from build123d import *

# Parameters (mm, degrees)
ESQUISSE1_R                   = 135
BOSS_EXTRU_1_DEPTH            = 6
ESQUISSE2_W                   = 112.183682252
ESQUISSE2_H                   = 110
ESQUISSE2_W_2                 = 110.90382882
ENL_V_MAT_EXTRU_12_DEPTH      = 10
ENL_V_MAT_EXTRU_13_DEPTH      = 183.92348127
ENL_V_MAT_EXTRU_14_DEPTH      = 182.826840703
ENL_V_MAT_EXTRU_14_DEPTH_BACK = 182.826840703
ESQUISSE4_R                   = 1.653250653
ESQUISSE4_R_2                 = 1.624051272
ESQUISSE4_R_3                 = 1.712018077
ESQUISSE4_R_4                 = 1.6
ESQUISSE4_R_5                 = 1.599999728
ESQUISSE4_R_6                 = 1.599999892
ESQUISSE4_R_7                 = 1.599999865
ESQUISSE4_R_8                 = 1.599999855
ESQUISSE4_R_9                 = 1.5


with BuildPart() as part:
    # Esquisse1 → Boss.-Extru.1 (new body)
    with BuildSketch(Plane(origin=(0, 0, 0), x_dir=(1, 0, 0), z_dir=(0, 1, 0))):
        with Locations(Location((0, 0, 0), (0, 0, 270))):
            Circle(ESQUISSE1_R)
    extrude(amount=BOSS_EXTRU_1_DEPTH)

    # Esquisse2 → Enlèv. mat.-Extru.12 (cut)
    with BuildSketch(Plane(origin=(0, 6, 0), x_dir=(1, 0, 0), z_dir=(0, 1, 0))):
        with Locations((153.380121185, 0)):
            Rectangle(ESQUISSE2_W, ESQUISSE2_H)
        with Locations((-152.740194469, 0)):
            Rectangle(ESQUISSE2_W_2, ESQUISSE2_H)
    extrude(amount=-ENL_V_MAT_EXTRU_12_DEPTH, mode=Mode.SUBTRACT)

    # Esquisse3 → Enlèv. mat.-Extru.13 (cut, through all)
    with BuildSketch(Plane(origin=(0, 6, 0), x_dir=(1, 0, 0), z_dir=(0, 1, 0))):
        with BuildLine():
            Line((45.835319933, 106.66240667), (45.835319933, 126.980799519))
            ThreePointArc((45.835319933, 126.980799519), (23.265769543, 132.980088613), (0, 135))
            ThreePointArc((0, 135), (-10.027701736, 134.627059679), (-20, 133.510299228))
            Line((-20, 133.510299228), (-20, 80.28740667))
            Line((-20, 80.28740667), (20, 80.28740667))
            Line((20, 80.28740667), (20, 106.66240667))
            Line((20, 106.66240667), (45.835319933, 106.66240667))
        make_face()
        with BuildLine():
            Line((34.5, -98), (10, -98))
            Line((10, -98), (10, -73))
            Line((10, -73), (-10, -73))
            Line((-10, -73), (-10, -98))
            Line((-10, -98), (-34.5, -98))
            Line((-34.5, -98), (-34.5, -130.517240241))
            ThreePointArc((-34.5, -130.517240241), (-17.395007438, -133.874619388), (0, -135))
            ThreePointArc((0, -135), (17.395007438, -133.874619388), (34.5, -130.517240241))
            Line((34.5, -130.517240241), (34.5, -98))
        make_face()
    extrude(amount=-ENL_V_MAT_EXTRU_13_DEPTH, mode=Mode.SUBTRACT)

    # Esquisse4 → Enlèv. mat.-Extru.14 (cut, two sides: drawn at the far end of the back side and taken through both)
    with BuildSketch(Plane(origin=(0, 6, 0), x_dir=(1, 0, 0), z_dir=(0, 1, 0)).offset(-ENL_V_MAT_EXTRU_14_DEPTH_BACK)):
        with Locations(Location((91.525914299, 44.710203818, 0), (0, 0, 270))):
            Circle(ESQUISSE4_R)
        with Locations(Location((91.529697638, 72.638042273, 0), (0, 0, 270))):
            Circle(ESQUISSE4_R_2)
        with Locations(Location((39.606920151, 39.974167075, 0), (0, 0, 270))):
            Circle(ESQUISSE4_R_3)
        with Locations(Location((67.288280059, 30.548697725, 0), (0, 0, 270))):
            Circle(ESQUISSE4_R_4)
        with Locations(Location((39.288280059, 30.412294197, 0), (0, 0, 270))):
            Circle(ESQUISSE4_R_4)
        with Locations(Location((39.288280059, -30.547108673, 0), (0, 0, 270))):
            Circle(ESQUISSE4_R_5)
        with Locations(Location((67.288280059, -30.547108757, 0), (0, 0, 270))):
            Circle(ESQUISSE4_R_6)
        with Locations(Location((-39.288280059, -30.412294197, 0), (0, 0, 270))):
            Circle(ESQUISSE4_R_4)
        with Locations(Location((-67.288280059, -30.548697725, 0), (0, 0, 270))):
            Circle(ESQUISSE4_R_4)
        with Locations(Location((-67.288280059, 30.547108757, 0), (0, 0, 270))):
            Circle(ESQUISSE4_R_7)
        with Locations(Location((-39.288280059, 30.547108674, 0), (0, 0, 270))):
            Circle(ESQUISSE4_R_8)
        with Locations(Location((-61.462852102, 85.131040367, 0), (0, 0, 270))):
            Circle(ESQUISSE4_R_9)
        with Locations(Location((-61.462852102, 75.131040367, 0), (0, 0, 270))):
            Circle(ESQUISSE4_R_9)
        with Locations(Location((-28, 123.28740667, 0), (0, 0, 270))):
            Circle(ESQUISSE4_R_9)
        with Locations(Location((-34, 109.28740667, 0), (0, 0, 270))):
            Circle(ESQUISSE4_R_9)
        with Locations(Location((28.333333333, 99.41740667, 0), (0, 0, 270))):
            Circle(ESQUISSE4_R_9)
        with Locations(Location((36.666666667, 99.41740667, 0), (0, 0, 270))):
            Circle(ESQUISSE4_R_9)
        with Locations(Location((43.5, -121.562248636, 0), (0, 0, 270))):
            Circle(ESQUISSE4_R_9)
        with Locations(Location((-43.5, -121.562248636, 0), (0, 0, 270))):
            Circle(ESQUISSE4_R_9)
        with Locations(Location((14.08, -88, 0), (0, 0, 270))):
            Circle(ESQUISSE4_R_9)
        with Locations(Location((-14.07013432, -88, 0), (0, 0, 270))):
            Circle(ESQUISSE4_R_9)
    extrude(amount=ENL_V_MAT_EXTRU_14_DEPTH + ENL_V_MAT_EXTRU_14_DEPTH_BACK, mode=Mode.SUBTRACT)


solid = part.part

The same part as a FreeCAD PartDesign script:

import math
import FreeCAD as App
import Part
import Sketcher

V = App.Vector
Q = App.Units.Quantity

doc = App.newDocument("Part")
body = doc.addObject("PartDesign::Body", "Body")

# Sketch on XZ plane
sketch1 = doc.addObject("Sketcher::SketchObject", "Sketch")
body.addObject(sketch1)
sketch1.AttachmentSupport = (doc.XZ_Plane, [""])
sketch1.MapMode = "FlatFace"
sketch1.addGeometry(Part.Circle(V(0, 0, 0), V(0, 0, 1), 135), False)
sketch1.addConstraint([
    Sketcher.Constraint("Coincident", 0, 3, -1, 1),
    Sketcher.Constraint("Diameter", 0, Q("270 mm")),
])
pad1 = doc.addObject("PartDesign::Pad", "Pad")
body.addObject(pad1)
pad1.Profile = sketch1
pad1.Length = 6
pad1.Reversed = True

# Sketch on XZ plane
sketch2 = doc.addObject("Sketcher::SketchObject", "Sketch001")
body.addObject(sketch2)
sketch2.AttachmentSupport = (doc.XZ_Plane, [""])
sketch2.MapMode = "FlatFace"
sketch2.AttachmentOffset = App.Placement(V(0, 0, -6), App.Rotation())
sketch2.addGeometry([
    Part.LineSegment(V(97, -55, 0), V(97, 55, 0)),  # 0
    Part.LineSegment(V(97, 55, 0), V(209, 55, 0)),  # 1
    Part.LineSegment(V(209, 55, 0), V(209, -55, 0)),  # 2
    Part.LineSegment(V(209, -55, 0), V(97, -55, 0)),  # 3
    Part.LineSegment(V(-208, -55, 0), V(-208, 55, 0)),  # 4
    Part.LineSegment(V(-208, 55, 0), V(-97, 55, 0)),  # 5
    Part.LineSegment(V(-97, 55, 0), V(-97, -55, 0)),  # 6
    Part.LineSegment(V(-97, -55, 0), V(-208, -55, 0)),  # 7
], False)
sketch2.addConstraint([
    Sketcher.Constraint("Coincident", 0, 2, 1, 1),
    Sketcher.Constraint("Coincident", 1, 2, 2, 1),
    Sketcher.Constraint("Coincident", 2, 2, 3, 1),
    Sketcher.Constraint("Coincident", 3, 2, 0, 1),
    Sketcher.Constraint("Coincident", 4, 2, 5, 1),
    Sketcher.Constraint("Coincident", 5, 2, 6, 1),
    Sketcher.Constraint("Coincident", 6, 2, 7, 1),
    Sketcher.Constraint("Coincident", 7, 2, 4, 1),
    Sketcher.Constraint("Vertical", 0),
    Sketcher.Constraint("Horizontal", 1),
    Sketcher.Constraint("Vertical", 2),
    Sketcher.Constraint("Horizontal", 3),
    Sketcher.Constraint("Vertical", 4),
    Sketcher.Constraint("Horizontal", 5),
    Sketcher.Constraint("Vertical", 6),
    Sketcher.Constraint("Horizontal", 7),
    Sketcher.Constraint("Symmetric", 3, 2, 5, 2, -1, 1),
    Sketcher.Constraint("Horizontal", 1, 2, 4, 2),
    Sketcher.Constraint("Horizontal", 3, 2, 6, 2),
    Sketcher.Constraint("DistanceY", 0, 1, 0, 2, Q("110 mm")),
    Sketcher.Constraint("DistanceX", 5, 1, 5, 2, Q("110.903829 mm")),
    Sketcher.Constraint("DistanceX", 1, 1, 1, 2, Q("112.183682 mm")),
    Sketcher.Constraint("DistanceX", -1, 1, 0, 2, Q("97.28828 mm")),
])
pocket1 = doc.addObject("PartDesign::Pocket", "Pocket")
body.addObject(pocket1)
pocket1.Profile = sketch2
pocket1.Length = 10
pocket1.Reversed = True

# Sketch on XZ plane
sketch3 = doc.addObject("Sketcher::SketchObject", "Sketch002")
body.addObject(sketch3)
sketch3.AttachmentSupport = (doc.XZ_Plane, [""])
sketch3.MapMode = "FlatFace"
sketch3.AttachmentOffset = App.Placement(V(0, 0, -6), App.Rotation())
sketch3.addGeometry([
    Part.LineSegment(V(46, -107, 0), V(46, -127, 0)),  # 0
    Part.ArcOfCircle(Part.Circle(V(0, 0, 0), V(0, 0, 1), 135), math.radians(-90), math.radians(-70.15)),  # 1
    Part.ArcOfCircle(Part.Circle(V(0, 0, 0), V(0, 0, 1), 135), math.radians(-98.52), math.radians(-90)),  # 2
    Part.LineSegment(V(-20, -134, 0), V(-20, -80, 0)),  # 3
    Part.LineSegment(V(-20, -80, 0), V(20, -80, 0)),  # 4
    Part.LineSegment(V(20, -80, 0), V(20, -107, 0)),  # 5
    Part.LineSegment(V(20, -107, 0), V(46, -107, 0)),  # 6
    Part.LineSegment(V(34, 98, 0), V(10, 98, 0)),  # 7
    Part.LineSegment(V(10, 98, 0), V(10, 73, 0)),  # 8
    Part.LineSegment(V(10, 73, 0), V(-10, 73, 0)),  # 9
    Part.LineSegment(V(-10, 73, 0), V(-10, 98, 0)),  # 10
    Part.LineSegment(V(-10, 98, 0), V(-34, 98, 0)),  # 11
    Part.LineSegment(V(-34, 98, 0), V(-34, 131, 0)),  # 12
    Part.ArcOfCircle(Part.Circle(V(0, 0, 0), V(0, 0, 1), 135), math.radians(90), math.radians(104.81)),  # 13
    Part.ArcOfCircle(Part.Circle(V(0, 0, 0), V(0, 0, 1), 135), math.radians(75.19), math.radians(90)),  # 14
    Part.LineSegment(V(34, 131, 0), V(34, 98, 0)),  # 15
], False)
sketch3.addConstraint([
    Sketcher.Constraint("Coincident", 0, 2, 1, 2),
    Sketcher.Constraint("Tangent", 1, 1, 2, 2),
    Sketcher.Constraint("Coincident", 2, 1, 3, 1),
    Sketcher.Constraint("Coincident", 3, 2, 4, 1),
    Sketcher.Constraint("Coincident", 4, 2, 5, 1),
    Sketcher.Constraint("Coincident", 5, 2, 6, 1),
    Sketcher.Constraint("Coincident", 6, 2, 0, 1),
    Sketcher.Constraint("Coincident", 7, 2, 8, 1),
    Sketcher.Constraint("Coincident", 8, 2, 9, 1),
    Sketcher.Constraint("Coincident", 9, 2, 10, 1),
    Sketcher.Constraint("Coincident", 10, 2, 11, 1),
    Sketcher.Constraint("Coincident", 11, 2, 12, 1),
    Sketcher.Constraint("Coincident", 12, 2, 13, 2),
    Sketcher.Constraint("Tangent", 13, 1, 14, 2),
    Sketcher.Constraint("Coincident", 14, 1, 15, 1),
    Sketcher.Constraint("Coincident", 15, 2, 7, 1),
    Sketcher.Constraint("Vertical", 0),
    Sketcher.Constraint("Vertical", 3),
    Sketcher.Constraint("Horizontal", 4),
    Sketcher.Constraint("Vertical", 5),
    Sketcher.Constraint("Horizontal", 6),
    Sketcher.Constraint("Horizontal", 7),
    Sketcher.Constraint("Vertical", 8),
    Sketcher.Constraint("Horizontal", 9),
    Sketcher.Constraint("Vertical", 10),
    Sketcher.Constraint("Horizontal", 11),
    Sketcher.Constraint("Vertical", 12),
    Sketcher.Constraint("Vertical", 15),
    Sketcher.Constraint("Coincident", 1, 3, -1, 1),
    Sketcher.Constraint("Coincident", 13, 3, -1, 1),
    Sketcher.Constraint("Equal", 1, 2),
    Sketcher.Constraint("Equal", 2, 13),
    Sketcher.Constraint("Equal", 13, 14),
    Sketcher.Constraint("Symmetric", 7, 2, 10, 2, -2),
    Sketcher.Constraint("PointOnObject", 1, 1, -2),
    Sketcher.Constraint("PointOnObject", 13, 1, -2),
    Sketcher.Constraint("Horizontal", 12, 2, 14, 1),
    Sketcher.Constraint("Radius", 1, Q("135 mm")),
    Sketcher.Constraint("DistanceX", 4, 1, 4, 2, Q("40 mm")),
    Sketcher.Constraint("DistanceX", 9, 2, 9, 1, Q("20 mm")),
    Sketcher.Constraint("DistanceY", 8, 2, 8, 1, Q("25 mm")),
    Sketcher.Constraint("DistanceX", 7, 2, 7, 1, Q("24.5 mm")),
    Sketcher.Constraint("DistanceX", 2, 1, -1, 1, Q("20 mm")),
    Sketcher.Constraint("DistanceY", -1, 1, 7, 2, Q("98 mm")),
    Sketcher.Constraint("DistanceY", 5, 2, 5, 1, Q("26.375 mm")),
    Sketcher.Constraint("DistanceX", 6, 1, 6, 2, Q("25.83532 mm")),
    Sketcher.Constraint("DistanceY", 0, 2, 0, 1, Q("20.318393 mm")),
])
pocket2 = doc.addObject("PartDesign::Pocket", "Pocket001")
body.addObject(pocket2)
pocket2.Profile = sketch3
pocket2.Type = "ThroughAll"
pocket2.Reversed = True

# Sketch on XZ plane
sketch4 = doc.addObject("Sketcher::SketchObject", "Sketch003")
body.addObject(sketch4)
sketch4.AttachmentSupport = (doc.XZ_Plane, [""])
sketch4.MapMode = "FlatFace"
sketch4.AttachmentOffset = App.Placement(V(0, 0, -6), App.Rotation())
sketch4.addGeometry([
    Part.Circle(V(91.5, -44.7, 0), V(0, 0, 1), 1.7),  # 0
    Part.Circle(V(91.5, -72.6, 0), V(0, 0, 1), 1.6),  # 1
    Part.Circle(V(39.6, -40, 0), V(0, 0, 1), 1.7),  # 2
    Part.Circle(V(67.3, -30.5, 0), V(0, 0, 1), 1.6),  # 3
    Part.Circle(V(39.3, -30.4, 0), V(0, 0, 1), 1.6),  # 4
    Part.Circle(V(39.3, 30.5, 0), V(0, 0, 1), 1.6),  # 5
    Part.Circle(V(67.3, 30.5, 0), V(0, 0, 1), 1.6),  # 6
    Part.Circle(V(-39.3, 30.4, 0), V(0, 0, 1), 1.6),  # 7
    Part.Circle(V(-67.3, 30.5, 0), V(0, 0, 1), 1.6),  # 8
    Part.Circle(V(-67.3, -30.5, 0), V(0, 0, 1), 1.6),  # 9
    Part.Circle(V(-39.3, -30.5, 0), V(0, 0, 1), 1.6),  # 10
    Part.Circle(V(-61.5, -85.1, 0), V(0, 0, 1), 1.5),  # 11
    Part.Circle(V(-61.5, -75.1, 0), V(0, 0, 1), 1.5),  # 12
    Part.Circle(V(-28, -123.3, 0), V(0, 0, 1), 1.5),  # 13
    Part.Circle(V(-34, -109.3, 0), V(0, 0, 1), 1.5),  # 14
    Part.Circle(V(28.3, -99.4, 0), V(0, 0, 1), 1.5),  # 15
    Part.Circle(V(36.7, -99.4, 0), V(0, 0, 1), 1.5),  # 16
    Part.Circle(V(43.5, 121.6, 0), V(0, 0, 1), 1.5),  # 17
    Part.Circle(V(-43.5, 121.6, 0), V(0, 0, 1), 1.5),  # 18
    Part.Circle(V(14.1, 88, 0), V(0, 0, 1), 1.5),  # 19
    Part.Circle(V(-14.1, 88, 0), V(0, 0, 1), 1.5),  # 20
], False)
sketch4.addConstraint([
    Sketcher.Constraint("Equal", 3, 4),
    Sketcher.Constraint("Equal", 4, 5),
    Sketcher.Constraint("Equal", 5, 6),
    Sketcher.Constraint("Equal", 6, 7),
    Sketcher.Constraint("Equal", 7, 8),
    Sketcher.Constraint("Equal", 8, 9),
    Sketcher.Constraint("Equal", 9, 10),
    Sketcher.Constraint("Equal", 11, 12),
    Sketcher.Constraint("Equal", 12, 13),
    Sketcher.Constraint("Equal", 13, 14),
    Sketcher.Constraint("Equal", 14, 15),
    Sketcher.Constraint("Equal", 15, 16),
    Sketcher.Constraint("Equal", 16, 17),
    Sketcher.Constraint("Equal", 17, 18),
    Sketcher.Constraint("Equal", 18, 19),
    Sketcher.Constraint("Equal", 19, 20),
    Sketcher.Constraint("Symmetric", 4, 3, 7, 3, -1, 1),
    Sketcher.Constraint("Symmetric", 3, 3, 8, 3, -1, 1),
    Sketcher.Constraint("Symmetric", 6, 3, 9, 3, -1, 1),
    Sketcher.Constraint("Symmetric", 5, 3, 10, 3, -1, 1),
    Sketcher.Constraint("Symmetric", 17, 3, 18, 3, -2),
    Sketcher.Constraint("Horizontal", 5, 3, 6, 3),
    Sketcher.Constraint("Horizontal", 15, 3, 16, 3),
    Sketcher.Constraint("Horizontal", 19, 3, 20, 3),
    Sketcher.Constraint("Vertical", 4, 3, 5, 3),
    Sketcher.Constraint("Vertical", 3, 3, 6, 3),
    Sketcher.Constraint("Vertical", 11, 3, 12, 3),
    Sketcher.Constraint("Diameter", 11, Q("3 mm")),
    Sketcher.Constraint("Diameter", 3, Q("3.2 mm")),
    Sketcher.Constraint("DistanceX", 13, 3, -1, 1, Q("28 mm")),
    Sketcher.Constraint("DistanceX", 14, 3, -1, 1, Q("34 mm")),
    Sketcher.Constraint("DistanceY", -1, 1, 19, 3, Q("88 mm")),
    Sketcher.Constraint("DistanceX", 4, 3, 3, 3, Q("28 mm")),
    Sketcher.Constraint("DistanceY", 11, 3, 12, 3, Q("10 mm")),
    Sketcher.Constraint("DistanceY", 13, 3, 14, 3, Q("14 mm")),
    Sketcher.Constraint("DistanceX", 18, 3, 17, 3, Q("87 mm")),
    Sketcher.Constraint("Diameter", 0, Q("3.306501 mm")),
    Sketcher.Constraint("DistanceX", -1, 1, 19, 3, Q("14.08 mm")),
    Sketcher.Constraint("DistanceY", 13, 3, 15, 3, Q("23.87 mm")),
    Sketcher.Constraint("Diameter", 1, Q("3.248103 mm")),
    Sketcher.Constraint("Diameter", 2, Q("3.424036 mm")),
    Sketcher.Constraint("DistanceX", 7, 3, 2, 3, Q("78.8952 mm")),
    Sketcher.Constraint("DistanceX", -1, 1, 2, 3, Q("39.60692 mm")),
    Sketcher.Constraint("DistanceY", -1, 1, 5, 3, Q("30.547109 mm")),
    Sketcher.Constraint("DistanceY", 11, 3, -1, 1, Q("85.13104 mm")),
    Sketcher.Constraint("DistanceY", -1, 1, 17, 3, Q("121.562249 mm")),
    Sketcher.Constraint("DistanceY", 1, 3, 0, 3, Q("27.927838 mm")),
    Sketcher.Constraint("DistanceY", 2, 3, 3, 3, Q("9.425469 mm")),
    Sketcher.Constraint("DistanceY", 0, 3, 4, 3, Q("14.29791 mm")),
    Sketcher.Constraint("DistanceY", 1, 3, 5, 3, Q("103.185151 mm")),
    Sketcher.Constraint("DistanceY", 2, 3, 7, 3, Q("70.386461 mm")),
    Sketcher.Constraint("DistanceY", 13, 3, 2, 3, Q("83.31324 mm")),
    Sketcher.Constraint("DistanceX", 16, 3, 1, 3, Q("54.863031 mm")),
    Sketcher.Constraint("DistanceX", -1, 1, 0, 3, Q("91.525914 mm")),
    Sketcher.Constraint("DistanceX", -1, 1, 1, 3, Q("91.529698 mm")),
    Sketcher.Constraint("DistanceX", 11, 3, -1, 1, Q("61.462852 mm")),
    Sketcher.Constraint("DistanceX", -1, 1, 15, 3, Q("28.333333 mm")),
    Sketcher.Constraint("DistanceX", 20, 3, -1, 1, Q("14.070134 mm")),
])
pocket3 = doc.addObject("PartDesign::Pocket", "Pocket002")
body.addObject(pocket3)
pocket3.Profile = sketch4
pocket3.Type = "ThroughAll"
pocket3.Midplane = True

doc.recompute()
